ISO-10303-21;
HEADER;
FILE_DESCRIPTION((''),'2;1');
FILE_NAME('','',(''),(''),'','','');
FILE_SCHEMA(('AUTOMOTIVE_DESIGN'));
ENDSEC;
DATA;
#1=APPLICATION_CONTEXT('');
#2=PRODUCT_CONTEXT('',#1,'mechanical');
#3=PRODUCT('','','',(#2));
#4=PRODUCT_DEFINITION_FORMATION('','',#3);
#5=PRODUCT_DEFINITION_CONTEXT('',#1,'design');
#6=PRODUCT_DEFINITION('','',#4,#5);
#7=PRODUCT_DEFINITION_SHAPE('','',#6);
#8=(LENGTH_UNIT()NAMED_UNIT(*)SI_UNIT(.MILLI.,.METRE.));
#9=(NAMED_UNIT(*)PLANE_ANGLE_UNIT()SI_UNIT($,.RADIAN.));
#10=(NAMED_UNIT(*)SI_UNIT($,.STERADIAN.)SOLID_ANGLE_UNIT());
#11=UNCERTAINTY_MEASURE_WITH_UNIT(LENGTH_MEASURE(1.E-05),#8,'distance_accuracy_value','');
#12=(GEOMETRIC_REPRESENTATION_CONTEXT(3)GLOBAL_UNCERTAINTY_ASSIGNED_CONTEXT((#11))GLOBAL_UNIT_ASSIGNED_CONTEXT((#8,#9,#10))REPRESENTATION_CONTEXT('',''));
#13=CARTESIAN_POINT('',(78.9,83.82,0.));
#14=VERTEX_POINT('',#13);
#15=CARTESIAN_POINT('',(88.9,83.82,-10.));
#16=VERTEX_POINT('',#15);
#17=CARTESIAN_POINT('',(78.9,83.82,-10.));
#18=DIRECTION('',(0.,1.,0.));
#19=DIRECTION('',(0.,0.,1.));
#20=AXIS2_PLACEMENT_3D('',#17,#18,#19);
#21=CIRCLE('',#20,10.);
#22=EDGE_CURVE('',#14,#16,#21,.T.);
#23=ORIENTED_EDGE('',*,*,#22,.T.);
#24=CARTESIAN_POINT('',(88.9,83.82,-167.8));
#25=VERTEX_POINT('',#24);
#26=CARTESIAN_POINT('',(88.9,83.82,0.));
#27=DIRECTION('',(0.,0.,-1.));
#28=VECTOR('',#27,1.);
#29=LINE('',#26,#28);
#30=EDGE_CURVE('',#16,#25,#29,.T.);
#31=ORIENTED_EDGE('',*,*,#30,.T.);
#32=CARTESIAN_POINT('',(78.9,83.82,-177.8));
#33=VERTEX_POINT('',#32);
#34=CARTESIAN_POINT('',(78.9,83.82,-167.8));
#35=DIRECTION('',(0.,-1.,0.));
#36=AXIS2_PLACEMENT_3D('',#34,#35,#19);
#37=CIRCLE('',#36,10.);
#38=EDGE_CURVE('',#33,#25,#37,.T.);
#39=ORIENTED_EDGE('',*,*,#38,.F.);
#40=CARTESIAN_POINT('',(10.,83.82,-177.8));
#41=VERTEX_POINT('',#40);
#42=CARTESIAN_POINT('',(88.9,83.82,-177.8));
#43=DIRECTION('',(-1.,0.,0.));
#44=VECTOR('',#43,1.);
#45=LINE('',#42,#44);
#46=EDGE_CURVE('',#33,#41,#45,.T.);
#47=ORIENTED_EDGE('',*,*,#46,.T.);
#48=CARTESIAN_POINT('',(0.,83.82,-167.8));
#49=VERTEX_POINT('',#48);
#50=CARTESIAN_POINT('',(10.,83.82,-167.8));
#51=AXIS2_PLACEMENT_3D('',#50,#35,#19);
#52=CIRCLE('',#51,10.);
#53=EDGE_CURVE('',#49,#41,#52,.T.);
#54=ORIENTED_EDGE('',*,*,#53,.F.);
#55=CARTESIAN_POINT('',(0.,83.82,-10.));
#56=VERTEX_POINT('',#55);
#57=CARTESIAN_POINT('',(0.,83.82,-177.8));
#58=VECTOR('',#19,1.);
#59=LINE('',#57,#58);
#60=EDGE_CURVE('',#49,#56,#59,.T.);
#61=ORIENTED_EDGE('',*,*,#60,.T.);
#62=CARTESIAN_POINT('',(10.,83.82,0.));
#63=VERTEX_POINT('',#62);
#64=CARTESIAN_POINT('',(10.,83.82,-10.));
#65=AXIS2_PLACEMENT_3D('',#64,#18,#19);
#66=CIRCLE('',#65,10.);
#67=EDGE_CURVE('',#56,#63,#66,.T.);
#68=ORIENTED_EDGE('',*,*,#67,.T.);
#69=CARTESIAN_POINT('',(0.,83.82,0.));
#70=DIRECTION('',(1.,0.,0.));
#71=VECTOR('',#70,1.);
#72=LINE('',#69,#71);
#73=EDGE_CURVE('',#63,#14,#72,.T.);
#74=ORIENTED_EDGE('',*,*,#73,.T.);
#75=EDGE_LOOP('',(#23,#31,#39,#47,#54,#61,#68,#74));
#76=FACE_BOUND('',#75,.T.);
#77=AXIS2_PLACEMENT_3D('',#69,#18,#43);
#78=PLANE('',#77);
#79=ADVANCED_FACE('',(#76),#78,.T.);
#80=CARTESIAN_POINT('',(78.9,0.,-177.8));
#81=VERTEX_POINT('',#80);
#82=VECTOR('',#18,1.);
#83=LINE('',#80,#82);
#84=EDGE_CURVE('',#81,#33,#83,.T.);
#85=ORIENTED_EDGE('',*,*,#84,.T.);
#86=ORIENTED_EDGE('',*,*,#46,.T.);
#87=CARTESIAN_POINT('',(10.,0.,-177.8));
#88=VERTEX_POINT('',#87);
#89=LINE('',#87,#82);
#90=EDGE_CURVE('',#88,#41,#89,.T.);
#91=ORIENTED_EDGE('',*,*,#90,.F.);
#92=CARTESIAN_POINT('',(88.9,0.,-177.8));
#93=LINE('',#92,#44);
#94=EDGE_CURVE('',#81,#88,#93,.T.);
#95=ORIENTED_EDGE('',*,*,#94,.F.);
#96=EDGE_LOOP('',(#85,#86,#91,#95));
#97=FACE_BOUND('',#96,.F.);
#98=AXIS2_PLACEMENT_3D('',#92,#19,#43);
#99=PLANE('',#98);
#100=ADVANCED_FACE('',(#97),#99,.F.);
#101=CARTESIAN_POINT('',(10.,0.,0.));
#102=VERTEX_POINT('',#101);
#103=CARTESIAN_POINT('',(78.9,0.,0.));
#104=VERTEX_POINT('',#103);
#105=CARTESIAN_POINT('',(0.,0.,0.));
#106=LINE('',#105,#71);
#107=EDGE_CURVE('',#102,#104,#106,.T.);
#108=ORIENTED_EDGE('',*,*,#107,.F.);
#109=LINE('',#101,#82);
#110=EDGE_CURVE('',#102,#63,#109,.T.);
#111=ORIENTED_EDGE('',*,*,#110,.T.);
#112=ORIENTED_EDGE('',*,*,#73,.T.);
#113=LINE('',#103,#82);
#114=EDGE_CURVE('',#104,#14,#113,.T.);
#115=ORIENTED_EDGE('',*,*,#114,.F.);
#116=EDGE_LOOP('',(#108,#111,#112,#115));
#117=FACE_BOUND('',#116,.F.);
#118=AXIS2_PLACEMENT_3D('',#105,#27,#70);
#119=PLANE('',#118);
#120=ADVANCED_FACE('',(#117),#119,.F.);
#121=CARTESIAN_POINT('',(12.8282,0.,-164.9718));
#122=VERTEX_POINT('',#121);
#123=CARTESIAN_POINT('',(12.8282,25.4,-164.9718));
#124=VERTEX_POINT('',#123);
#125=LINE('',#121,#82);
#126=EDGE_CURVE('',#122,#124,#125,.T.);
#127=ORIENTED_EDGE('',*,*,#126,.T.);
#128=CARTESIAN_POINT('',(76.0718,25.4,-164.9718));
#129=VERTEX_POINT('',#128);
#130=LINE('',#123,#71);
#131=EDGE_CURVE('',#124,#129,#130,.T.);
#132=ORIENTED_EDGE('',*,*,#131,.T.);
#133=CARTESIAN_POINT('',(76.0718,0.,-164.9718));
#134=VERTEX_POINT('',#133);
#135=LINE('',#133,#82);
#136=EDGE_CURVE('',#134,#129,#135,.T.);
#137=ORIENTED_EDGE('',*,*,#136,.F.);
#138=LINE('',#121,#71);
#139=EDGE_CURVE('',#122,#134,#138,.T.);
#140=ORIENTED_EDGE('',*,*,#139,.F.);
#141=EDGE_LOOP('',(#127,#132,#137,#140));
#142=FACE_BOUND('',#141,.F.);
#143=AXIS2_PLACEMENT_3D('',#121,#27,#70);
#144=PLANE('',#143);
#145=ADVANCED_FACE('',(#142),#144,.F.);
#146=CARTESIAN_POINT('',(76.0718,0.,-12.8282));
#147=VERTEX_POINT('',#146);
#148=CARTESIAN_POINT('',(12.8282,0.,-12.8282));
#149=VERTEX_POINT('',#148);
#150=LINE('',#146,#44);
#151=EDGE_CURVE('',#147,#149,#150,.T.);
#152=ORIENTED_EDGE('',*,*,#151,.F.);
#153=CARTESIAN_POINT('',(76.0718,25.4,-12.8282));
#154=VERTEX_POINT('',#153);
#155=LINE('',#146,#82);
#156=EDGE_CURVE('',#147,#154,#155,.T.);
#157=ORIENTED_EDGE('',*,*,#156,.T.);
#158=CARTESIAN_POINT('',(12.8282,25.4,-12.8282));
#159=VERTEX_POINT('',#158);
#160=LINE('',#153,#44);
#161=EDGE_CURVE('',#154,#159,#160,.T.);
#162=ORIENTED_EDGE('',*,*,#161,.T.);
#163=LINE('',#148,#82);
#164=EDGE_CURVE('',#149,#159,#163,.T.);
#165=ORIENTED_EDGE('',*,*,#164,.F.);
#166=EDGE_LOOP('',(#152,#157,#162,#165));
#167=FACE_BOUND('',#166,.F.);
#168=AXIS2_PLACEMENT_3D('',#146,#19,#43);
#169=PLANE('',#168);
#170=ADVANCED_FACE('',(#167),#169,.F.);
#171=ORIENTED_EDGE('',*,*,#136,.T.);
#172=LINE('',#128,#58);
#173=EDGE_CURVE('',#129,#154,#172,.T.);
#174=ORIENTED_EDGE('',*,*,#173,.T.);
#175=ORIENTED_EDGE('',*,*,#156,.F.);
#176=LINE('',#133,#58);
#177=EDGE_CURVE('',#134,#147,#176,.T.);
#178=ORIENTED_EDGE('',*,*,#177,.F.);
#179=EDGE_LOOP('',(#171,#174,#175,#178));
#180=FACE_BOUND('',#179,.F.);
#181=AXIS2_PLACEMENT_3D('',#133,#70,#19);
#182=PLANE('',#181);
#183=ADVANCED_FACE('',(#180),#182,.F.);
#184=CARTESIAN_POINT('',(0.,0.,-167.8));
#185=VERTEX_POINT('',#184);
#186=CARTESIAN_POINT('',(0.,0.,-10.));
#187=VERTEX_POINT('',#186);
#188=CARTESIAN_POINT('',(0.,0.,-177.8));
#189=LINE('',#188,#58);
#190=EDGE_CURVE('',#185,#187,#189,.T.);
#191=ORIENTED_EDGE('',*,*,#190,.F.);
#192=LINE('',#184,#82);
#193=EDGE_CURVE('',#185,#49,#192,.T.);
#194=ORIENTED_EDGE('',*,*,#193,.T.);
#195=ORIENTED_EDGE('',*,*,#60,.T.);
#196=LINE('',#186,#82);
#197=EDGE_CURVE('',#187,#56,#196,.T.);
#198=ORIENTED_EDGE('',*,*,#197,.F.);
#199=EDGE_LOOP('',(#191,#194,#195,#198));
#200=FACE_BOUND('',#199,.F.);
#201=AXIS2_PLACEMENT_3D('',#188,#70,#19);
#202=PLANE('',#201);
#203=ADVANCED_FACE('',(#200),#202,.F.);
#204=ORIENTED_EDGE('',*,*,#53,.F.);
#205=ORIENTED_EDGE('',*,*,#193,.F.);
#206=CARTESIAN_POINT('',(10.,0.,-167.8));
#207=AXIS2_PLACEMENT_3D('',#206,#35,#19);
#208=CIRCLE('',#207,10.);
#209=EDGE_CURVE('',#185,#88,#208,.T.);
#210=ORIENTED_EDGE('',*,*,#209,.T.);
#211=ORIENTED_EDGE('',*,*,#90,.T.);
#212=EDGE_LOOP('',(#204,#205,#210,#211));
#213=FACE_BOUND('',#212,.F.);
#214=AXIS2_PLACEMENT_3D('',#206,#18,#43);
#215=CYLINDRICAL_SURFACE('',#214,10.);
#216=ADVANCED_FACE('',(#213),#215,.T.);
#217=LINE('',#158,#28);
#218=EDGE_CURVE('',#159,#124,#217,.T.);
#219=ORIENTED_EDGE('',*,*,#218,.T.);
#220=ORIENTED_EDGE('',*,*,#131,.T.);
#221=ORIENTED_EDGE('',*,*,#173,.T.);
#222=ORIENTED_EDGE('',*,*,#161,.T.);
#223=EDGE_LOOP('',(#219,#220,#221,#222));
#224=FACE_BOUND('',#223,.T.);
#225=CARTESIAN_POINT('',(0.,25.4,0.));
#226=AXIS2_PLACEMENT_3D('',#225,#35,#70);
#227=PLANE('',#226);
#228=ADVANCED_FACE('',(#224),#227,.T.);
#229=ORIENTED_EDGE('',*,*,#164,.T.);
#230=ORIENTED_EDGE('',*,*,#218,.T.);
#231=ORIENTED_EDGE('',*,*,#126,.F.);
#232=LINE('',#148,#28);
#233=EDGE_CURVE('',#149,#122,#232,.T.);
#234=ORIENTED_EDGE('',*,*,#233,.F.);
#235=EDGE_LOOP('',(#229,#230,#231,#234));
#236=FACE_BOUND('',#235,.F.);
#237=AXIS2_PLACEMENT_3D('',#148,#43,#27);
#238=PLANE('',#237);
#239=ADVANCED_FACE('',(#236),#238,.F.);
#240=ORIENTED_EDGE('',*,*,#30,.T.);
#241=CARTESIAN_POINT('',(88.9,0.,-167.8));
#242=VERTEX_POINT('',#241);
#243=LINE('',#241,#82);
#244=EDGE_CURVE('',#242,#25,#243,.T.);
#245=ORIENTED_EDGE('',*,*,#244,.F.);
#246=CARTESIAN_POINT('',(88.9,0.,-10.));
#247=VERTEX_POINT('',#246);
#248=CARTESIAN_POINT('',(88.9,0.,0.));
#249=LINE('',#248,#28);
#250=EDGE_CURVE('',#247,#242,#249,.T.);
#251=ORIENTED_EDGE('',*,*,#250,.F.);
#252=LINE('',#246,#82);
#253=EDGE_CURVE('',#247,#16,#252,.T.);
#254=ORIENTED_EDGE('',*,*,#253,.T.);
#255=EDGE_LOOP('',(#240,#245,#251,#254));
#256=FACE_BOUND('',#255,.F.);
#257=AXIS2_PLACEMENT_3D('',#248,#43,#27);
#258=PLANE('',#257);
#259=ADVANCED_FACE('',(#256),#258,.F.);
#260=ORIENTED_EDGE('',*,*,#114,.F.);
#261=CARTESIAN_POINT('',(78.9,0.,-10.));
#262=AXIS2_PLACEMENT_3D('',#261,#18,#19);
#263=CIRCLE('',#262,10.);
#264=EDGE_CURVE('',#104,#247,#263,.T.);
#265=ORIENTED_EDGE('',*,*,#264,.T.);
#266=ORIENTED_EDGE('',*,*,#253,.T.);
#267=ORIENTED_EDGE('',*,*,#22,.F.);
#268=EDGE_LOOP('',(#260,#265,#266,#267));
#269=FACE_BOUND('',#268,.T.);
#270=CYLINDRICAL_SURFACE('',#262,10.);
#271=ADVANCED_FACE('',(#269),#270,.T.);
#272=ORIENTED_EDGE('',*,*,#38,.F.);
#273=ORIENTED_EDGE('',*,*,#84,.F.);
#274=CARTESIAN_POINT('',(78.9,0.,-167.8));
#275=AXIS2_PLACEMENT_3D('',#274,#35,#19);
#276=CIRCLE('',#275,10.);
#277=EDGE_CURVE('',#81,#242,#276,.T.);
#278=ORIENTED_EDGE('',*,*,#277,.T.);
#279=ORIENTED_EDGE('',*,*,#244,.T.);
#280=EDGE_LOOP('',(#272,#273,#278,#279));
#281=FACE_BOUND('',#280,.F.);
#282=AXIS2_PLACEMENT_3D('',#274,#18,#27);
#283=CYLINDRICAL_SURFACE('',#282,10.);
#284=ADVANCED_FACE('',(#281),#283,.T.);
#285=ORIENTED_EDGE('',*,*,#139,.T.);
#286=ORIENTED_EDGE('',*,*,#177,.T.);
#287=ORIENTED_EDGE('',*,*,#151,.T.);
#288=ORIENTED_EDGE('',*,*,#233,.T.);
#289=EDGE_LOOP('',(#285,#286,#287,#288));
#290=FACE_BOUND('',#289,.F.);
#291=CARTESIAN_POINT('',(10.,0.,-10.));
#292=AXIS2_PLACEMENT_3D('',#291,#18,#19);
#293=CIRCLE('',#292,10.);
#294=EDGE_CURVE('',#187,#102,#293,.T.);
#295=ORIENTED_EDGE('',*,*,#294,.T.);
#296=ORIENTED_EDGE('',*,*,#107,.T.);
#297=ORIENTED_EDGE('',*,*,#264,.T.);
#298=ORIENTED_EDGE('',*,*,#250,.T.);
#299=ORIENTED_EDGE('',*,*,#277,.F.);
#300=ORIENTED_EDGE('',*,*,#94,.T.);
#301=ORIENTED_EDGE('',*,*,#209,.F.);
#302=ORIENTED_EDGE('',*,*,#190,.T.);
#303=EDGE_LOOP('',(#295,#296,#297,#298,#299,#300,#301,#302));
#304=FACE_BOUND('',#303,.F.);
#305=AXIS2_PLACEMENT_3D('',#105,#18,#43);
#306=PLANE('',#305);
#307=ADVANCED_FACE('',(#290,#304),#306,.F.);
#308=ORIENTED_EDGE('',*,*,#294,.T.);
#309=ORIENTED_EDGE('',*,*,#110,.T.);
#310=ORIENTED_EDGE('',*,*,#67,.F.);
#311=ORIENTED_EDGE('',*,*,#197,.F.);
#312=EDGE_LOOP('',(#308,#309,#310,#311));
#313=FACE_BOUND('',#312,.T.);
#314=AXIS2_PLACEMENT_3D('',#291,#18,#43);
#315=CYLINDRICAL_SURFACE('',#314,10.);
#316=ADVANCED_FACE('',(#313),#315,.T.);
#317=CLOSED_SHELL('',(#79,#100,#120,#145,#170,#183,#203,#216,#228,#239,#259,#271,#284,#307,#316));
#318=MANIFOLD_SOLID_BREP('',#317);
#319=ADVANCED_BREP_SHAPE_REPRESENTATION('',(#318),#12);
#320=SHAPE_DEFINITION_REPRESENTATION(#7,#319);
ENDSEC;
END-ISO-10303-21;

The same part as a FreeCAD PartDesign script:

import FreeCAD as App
import Part
import Sketcher
from FreeCAD import Vector
Q = App.Units.Quantity


def edges_at(feature, points):
    """Names of the edges that pass closest to the given points."""
    edges = feature.Shape.Edges
    near = lambda p: min(range(len(edges)), key=lambda i: edges[i].distToShape(Part.Vertex(*p))[0])
    return sorted({f"Edge{near(p) + 1}" for p in points})

doc = App.newDocument("Part")
body = doc.addObject("PartDesign::Body", "Body")

# Sketch on XZ plane
sketch1 = body.newObject("Sketcher::SketchObject", "Sketch")
sketch1.AttachmentSupport = (doc.getObject("XZ_Plane"), [""])
sketch1.MapMode = "FlatFace"
sketch1.addGeometry([
    Part.LineSegment(Vector(0, -177.8, 0), Vector(0, 0, 0)),
    Part.LineSegment(Vector(0, 0, 0), Vector(88.9, 0, 0)),
    Part.LineSegment(Vector(88.9, 0, 0), Vector(88.9, -177.8, 0)),
    Part.LineSegment(Vector(88.9, -177.8, 0), Vector(0, -177.8, 0)),
], False)
sketch1.addConstraint([
    Sketcher.Constraint("Coincident", 0, 2, 1, 1),
    Sketcher.Constraint("Coincident", 1, 2, 2, 1),
    Sketcher.Constraint("Coincident", 2, 2, 3, 1),
    Sketcher.Constraint("Coincident", 3, 2, 0, 1),
    Sketcher.Constraint("Vertical", 0),
    Sketcher.Constraint("Horizontal", 1),
    Sketcher.Constraint("Vertical", 2),
    Sketcher.Constraint("Horizontal", 3),
    Sketcher.Constraint("Coincident", 0, 2, -1, 1),
    Sketcher.Constraint("DistanceY", 0, 1, 0, 2, Q("7 in")),
    Sketcher.Constraint("DistanceX", 1, 1, 1, 2, Q("3.5 in")),
])
pad1 = body.newObject("PartDesign::Pad", "Pad")
pad1.Profile = sketch1
pad1.Length = Q("3.3 in")
pad1.Reversed = True

# Sketch on XZ plane
sketch2 = body.newObject("Sketcher::SketchObject", "Sketch001")
sketch2.AttachmentSupport = (doc.getObject("XZ_Plane"), [""])
sketch2.MapMode = "FlatFace"
sketch2.addGeometry([
    Part.LineSegment(Vector(12.8282, -164.9718, 0), Vector(76.0718, -164.9718, 0)),
    Part.LineSegment(Vector(76.0718, -164.9718, 0), Vector(76.0718, -12.8282, 0)),
    Part.LineSegment(Vector(76.0718, -12.8282, 0), Vector(12.8282, -12.8282, 0)),
    Part.LineSegment(Vector(12.8282, -12.8282, 0), Vector(12.8282, -164.9718, 0)),
], False)
sketch2.addConstraint([
    Sketcher.Constraint("Coincident", 0, 2, 1, 1),
    Sketcher.Constraint("Coincident", 1, 2, 2, 1),
    Sketcher.Constraint("Coincident", 2, 2, 3, 1),
    Sketcher.Constraint("Coincident", 3, 2, 0, 1),
    Sketcher.Constraint("Horizontal", 0),
    Sketcher.Constraint("Vertical", 1),
    Sketcher.Constraint("Horizontal", 2),
    Sketcher.Constraint("Vertical", 3),
    Sketcher.Constraint("DistanceX", 0, 1, 0, 2, Q("2.4899 in")),
    Sketcher.Constraint("DistanceY", 1, 1, 1, 2, Q("5.9899 in")),
    Sketcher.Constraint("DistanceX", -1, 1, 0, 2, 76.0718),
    Sketcher.Constraint("DistanceY", 0, 2, -1, 1, 164.9718),
])
pocket1 = body.newObject("PartDesign::Pocket", "Pocket")
pocket1.Profile = sketch2
pocket1.Length = Q("1 in")
doc.recompute()

fillet = body.newObject("PartDesign::Fillet", "Fillet")
fillet.Base = (pocket1, edges_at(pocket1, [
    (88.9, 41.91, -177.8),
    (0, 41.91, -177.8),
    (88.9, 41.91, 0),
    (0, 41.91, 0),
]))
fillet.Radius = Q("0.3937008 in")

doc.recompute()
